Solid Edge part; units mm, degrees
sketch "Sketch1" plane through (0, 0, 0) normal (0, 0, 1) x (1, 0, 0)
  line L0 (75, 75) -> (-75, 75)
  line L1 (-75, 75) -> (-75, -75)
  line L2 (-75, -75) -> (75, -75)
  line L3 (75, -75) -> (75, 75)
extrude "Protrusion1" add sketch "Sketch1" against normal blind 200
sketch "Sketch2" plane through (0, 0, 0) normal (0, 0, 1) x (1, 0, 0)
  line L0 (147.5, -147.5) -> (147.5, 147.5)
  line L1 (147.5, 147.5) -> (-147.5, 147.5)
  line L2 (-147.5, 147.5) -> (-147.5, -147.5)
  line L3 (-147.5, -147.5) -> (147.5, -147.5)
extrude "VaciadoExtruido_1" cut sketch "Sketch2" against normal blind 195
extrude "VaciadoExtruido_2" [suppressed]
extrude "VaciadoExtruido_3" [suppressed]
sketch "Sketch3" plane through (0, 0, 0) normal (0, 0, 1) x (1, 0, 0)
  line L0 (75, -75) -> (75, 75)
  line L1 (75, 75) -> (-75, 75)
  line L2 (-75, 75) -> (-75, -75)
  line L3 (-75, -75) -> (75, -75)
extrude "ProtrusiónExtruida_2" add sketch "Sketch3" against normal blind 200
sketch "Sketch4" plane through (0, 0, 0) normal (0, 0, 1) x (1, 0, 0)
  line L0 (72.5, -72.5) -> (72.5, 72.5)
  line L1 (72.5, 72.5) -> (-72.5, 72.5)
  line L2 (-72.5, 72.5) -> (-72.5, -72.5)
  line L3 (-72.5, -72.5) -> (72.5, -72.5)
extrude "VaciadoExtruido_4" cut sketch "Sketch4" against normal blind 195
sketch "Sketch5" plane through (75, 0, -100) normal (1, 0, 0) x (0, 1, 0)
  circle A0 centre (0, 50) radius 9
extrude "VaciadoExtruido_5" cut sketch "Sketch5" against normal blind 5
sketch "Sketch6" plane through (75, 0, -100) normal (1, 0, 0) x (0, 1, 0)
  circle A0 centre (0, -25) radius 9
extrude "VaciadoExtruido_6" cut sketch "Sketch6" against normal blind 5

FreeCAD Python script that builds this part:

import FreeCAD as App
import Part
import Sketcher
from FreeCAD import Vector


def add_polygon(sketch, points):
    """Adds a closed chain of lines whose ends are joined by coincident constraints."""
    first, n = sketch.GeometryCount, len(points)
    for a, b in zip(points, points[1:] + points[:1]):
        sketch.addGeometry(Part.LineSegment(App.Vector(*a, 0), App.Vector(*b, 0)), False)
    for i in range(n):
        sketch.addConstraint(Sketcher.Constraint("Coincident", first + i, 2, first + (i + 1) % n, 1))

doc = App.newDocument("Part")
body = doc.addObject("PartDesign::Body", "Body")

sketch1 = body.newObject("Sketcher::SketchObject", "Sketch")
sketch1.AttachmentSupport = (doc.getObject("XY_Plane"), [""])
sketch1.MapMode = "FlatFace"
add_polygon(sketch1, [(75, -75), (75, 75), (-75, 75), (-75, -75)])
sketch1.addConstraint([
    Sketcher.Constraint("Vertical", 0),
    Sketcher.Constraint("Horizontal", 1),
    Sketcher.Constraint("Vertical", 2),
    Sketcher.Constraint("Horizontal", 3),
    Sketcher.Constraint("Symmetric", 0, 2, 2, 2, -1, 1),
    Sketcher.Constraint("Equal", 3, 0),
    Sketcher.Constraint("DistanceX", 1, 2, 1, 1, 150.0),
])
pad1 = body.newObject("PartDesign::Pad", "Pad")
pad1.Profile = sketch1
pad1.Length = 200
pad1.Reversed = True

sketch2 = body.newObject("Sketcher::SketchObject", "Sketch001")
sketch2.AttachmentSupport = (doc.getObject("XY_Plane"), [""])
sketch2.MapMode = "FlatFace"
add_polygon(sketch2, [(-148, -148), (148, -148), (148, 148), (-148, 148)])
sketch2.addConstraint([
    Sketcher.Constraint("Horizontal", 0),
    Sketcher.Constraint("Vertical", 1),
    Sketcher.Constraint("Horizontal", 2),
    Sketcher.Constraint("Vertical", 3),
    Sketcher.Constraint("Symmetric", 0, 2, 2, 2, -1, 1),
    Sketcher.Constraint("Equal", 2, 1),
    Sketcher.Constraint("DistanceX", 0, 1, 0, 2, 295.0),
])
pocket1 = body.newObject("PartDesign::Pocket", "Pocket")
pocket1.Profile = sketch2
pocket1.Length = 195

sketch3 = body.newObject("Sketcher::SketchObject", "Sketch002")
sketch3.AttachmentSupport = (doc.getObject("XY_Plane"), [""])
sketch3.MapMode = "FlatFace"
add_polygon(sketch3, [(-75, -75), (75, -75), (75, 75), (-75, 75)])
sketch3.addConstraint([
    Sketcher.Constraint("Horizontal", 0),
    Sketcher.Constraint("Vertical", 1),
    Sketcher.Constraint("Horizontal", 2),
    Sketcher.Constraint("Vertical", 3),
    Sketcher.Constraint("Symmetric", 0, 2, 2, 2, -1, 1),
    Sketcher.Constraint("Equal", 2, 1),
    Sketcher.Constraint("DistanceX", 0, 1, 0, 2, 150.0),
])
pad2 = body.newObject("PartDesign::Pad", "Pad001")
pad2.Profile = sketch3
pad2.Length = 200
pad2.Reversed = True

sketch4 = body.newObject("Sketcher::SketchObject", "Sketch003")
sketch4.AttachmentSupport = (doc.getObject("XY_Plane"), [""])
sketch4.MapMode = "FlatFace"
add_polygon(sketch4, [(-72, -72), (72, -72), (72, 72), (-72, 72)])
sketch4.addConstraint([
    Sketcher.Constraint("Horizontal", 0),
    Sketcher.Constraint("Vertical", 1),
    Sketcher.Constraint("Horizontal", 2),
    Sketcher.Constraint("Vertical", 3),
    Sketcher.Constraint("Symmetric", 0, 2, 2, 2, -1, 1),
    Sketcher.Constraint("Equal", 2, 1),
    Sketcher.Constraint("DistanceX", 0, 1, 0, 2, 145.0),
])
pocket2 = body.newObject("PartDesign::Pocket", "Pocket001")
pocket2.Profile = sketch4
pocket2.Length = 195

sketch5 = body.newObject("Sketcher::SketchObject", "Sketch004")
sketch5.AttachmentSupport = (doc.getObject("YZ_Plane"), [""])
sketch5.MapMode = "FlatFace"
sketch5.AttachmentOffset = App.Placement(Vector(0, 0, 75), App.Rotation())
sketch5.addGeometry(Part.Circle(Vector(0, -50, 0), Vector(0, 0, 1), 9), False)
sketch5.addConstraint([
    Sketcher.Constraint("PointOnObject", 0, 3, -2),
    Sketcher.Constraint("Diameter", 0, 18.0),
    Sketcher.Constraint("DistanceY", 0, 3, -1, 1, 50.0),
])
pocket3 = body.newObject("PartDesign::Pocket", "Pocket002")
pocket3.Profile = sketch5
pocket3.Length = 5

sketch6 = body.newObject("Sketcher::SketchObject", "Sketch005")
sketch6.AttachmentSupport = (doc.getObject("YZ_Plane"), [""])
sketch6.MapMode = "FlatFace"
sketch6.AttachmentOffset = App.Placement(Vector(0, 0, 75), App.Rotation())
sketch6.addGeometry(Part.Circle(Vector(0, -125, 0), Vector(0, 0, 1), 9), False)
sketch6.addConstraint([
    Sketcher.Constraint("PointOnObject", 0, 3, -2),
    Sketcher.Constraint("Diameter", 0, 18.0),
    Sketcher.Constraint("DistanceY", 0, 3, -1, 1, 125.0),
])
pocket4 = body.newObject("PartDesign::Pocket", "Pocket003")
pocket4.Profile = sketch6
pocket4.Length = 5

doc.recompute()
